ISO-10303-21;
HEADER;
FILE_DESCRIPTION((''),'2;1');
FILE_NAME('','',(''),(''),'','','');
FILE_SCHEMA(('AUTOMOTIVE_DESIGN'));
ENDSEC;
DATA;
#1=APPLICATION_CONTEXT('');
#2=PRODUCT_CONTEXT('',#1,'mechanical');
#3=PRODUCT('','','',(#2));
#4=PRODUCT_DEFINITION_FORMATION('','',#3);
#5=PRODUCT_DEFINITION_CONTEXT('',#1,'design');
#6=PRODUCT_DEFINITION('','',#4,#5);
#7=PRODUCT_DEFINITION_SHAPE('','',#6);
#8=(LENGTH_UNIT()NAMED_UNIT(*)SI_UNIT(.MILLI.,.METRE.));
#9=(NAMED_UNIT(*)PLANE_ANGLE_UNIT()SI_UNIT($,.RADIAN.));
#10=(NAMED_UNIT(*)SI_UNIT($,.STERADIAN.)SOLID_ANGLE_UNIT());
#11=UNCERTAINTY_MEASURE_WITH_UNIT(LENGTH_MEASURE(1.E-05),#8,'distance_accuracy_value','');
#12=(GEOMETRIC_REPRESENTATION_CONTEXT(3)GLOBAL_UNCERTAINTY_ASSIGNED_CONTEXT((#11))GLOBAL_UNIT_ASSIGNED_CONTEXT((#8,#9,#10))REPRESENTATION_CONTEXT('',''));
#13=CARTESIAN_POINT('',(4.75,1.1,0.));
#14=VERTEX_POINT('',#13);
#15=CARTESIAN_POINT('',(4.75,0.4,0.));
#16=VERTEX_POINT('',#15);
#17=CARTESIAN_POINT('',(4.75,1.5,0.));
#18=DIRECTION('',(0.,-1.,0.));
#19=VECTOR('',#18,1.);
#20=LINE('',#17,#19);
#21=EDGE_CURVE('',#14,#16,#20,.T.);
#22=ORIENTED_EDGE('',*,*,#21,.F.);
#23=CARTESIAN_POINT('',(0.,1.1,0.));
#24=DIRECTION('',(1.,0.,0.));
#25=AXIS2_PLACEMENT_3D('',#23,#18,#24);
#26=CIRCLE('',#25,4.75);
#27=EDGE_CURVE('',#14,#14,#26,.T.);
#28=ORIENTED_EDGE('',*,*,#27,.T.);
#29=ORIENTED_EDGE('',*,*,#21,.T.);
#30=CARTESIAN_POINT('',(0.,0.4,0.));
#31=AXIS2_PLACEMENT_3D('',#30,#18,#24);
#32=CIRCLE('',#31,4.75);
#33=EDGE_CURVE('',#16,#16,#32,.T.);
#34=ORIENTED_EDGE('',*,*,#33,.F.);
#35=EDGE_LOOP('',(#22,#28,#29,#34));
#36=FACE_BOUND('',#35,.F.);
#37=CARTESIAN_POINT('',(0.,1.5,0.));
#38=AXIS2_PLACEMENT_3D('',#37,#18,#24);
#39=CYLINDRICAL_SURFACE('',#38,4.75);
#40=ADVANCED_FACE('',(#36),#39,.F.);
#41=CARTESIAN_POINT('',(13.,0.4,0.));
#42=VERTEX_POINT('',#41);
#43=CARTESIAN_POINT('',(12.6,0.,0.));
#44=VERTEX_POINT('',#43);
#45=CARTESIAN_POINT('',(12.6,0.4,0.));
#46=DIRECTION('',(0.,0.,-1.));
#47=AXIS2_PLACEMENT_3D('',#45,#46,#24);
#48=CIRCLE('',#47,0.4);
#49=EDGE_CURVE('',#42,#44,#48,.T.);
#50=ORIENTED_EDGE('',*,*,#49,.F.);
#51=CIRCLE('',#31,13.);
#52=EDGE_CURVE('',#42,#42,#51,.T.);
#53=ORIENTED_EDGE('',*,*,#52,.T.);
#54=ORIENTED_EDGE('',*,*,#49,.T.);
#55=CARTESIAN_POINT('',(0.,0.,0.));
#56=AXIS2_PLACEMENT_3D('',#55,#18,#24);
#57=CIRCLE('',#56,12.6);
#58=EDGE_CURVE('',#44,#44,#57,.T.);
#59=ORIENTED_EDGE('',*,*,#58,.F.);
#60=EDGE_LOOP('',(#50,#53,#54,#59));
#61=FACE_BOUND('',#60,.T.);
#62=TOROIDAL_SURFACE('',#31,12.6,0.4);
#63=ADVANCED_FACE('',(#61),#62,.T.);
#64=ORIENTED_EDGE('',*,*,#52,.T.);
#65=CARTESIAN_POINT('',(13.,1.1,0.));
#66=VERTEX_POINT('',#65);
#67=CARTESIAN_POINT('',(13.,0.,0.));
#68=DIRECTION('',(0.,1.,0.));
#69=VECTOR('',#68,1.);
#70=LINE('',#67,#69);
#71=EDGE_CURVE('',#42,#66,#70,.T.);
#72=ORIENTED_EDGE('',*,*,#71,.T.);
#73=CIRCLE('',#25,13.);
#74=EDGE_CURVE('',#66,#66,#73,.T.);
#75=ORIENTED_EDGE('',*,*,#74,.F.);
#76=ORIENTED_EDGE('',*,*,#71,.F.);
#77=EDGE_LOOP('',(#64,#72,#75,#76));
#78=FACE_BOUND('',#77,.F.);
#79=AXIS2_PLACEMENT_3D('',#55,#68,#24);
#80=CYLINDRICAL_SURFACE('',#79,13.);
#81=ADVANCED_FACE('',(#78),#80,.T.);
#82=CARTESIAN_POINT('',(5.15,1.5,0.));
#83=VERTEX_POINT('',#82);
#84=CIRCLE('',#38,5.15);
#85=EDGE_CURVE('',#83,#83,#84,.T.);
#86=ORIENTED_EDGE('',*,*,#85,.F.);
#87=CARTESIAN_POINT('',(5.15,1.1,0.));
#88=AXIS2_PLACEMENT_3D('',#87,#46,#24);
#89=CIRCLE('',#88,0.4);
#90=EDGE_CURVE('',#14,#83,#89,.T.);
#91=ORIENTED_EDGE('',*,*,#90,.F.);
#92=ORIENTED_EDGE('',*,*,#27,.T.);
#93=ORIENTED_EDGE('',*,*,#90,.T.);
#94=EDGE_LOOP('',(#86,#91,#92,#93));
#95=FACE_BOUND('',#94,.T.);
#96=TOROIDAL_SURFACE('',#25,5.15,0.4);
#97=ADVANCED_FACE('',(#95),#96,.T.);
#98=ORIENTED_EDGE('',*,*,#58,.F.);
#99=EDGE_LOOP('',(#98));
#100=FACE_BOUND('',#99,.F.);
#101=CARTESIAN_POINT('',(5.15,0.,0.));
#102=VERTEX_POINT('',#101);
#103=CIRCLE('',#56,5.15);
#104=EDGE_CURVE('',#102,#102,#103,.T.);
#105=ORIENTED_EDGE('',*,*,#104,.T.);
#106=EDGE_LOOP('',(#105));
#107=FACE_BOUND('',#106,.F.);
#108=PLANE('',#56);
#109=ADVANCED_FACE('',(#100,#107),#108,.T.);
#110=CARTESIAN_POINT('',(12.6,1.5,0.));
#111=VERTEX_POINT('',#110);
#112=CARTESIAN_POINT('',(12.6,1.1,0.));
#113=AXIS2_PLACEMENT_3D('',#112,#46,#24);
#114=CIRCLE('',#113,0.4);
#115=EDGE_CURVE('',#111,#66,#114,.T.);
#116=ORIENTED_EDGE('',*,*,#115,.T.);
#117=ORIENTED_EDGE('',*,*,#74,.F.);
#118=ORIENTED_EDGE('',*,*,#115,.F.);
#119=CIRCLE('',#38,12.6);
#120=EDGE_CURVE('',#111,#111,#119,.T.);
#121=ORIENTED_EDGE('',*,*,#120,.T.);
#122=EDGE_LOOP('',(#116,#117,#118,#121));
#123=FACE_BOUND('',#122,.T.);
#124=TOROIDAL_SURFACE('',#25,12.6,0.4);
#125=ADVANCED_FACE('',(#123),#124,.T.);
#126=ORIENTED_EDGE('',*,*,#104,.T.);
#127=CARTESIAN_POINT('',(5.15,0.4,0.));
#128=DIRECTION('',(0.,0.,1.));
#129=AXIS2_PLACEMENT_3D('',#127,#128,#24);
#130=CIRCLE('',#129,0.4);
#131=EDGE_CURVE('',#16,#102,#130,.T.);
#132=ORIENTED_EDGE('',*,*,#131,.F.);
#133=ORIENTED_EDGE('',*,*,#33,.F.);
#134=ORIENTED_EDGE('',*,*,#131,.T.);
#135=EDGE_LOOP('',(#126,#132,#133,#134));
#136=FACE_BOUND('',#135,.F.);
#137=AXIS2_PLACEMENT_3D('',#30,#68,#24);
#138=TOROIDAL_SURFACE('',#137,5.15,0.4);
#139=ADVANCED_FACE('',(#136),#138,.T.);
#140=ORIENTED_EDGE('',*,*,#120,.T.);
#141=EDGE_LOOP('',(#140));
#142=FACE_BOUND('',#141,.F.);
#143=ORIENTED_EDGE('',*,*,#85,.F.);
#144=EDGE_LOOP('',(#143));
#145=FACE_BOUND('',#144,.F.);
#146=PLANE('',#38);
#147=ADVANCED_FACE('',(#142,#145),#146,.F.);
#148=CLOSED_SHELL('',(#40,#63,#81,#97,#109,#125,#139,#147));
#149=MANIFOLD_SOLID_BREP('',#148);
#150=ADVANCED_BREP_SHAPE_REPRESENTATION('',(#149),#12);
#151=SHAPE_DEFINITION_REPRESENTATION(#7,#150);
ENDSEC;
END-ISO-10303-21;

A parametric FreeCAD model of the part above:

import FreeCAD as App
import Part
import Sketcher
from FreeCAD import Vector


def edges_at(feature, points):
    """Names of the edges that pass closest to the given points."""
    edges = feature.Shape.Edges
    near = lambda p: min(range(len(edges)), key=lambda i: edges[i].distToShape(Part.Vertex(*p))[0])
    return sorted({f"Edge{near(p) + 1}" for p in points})


def add_polygon(sketch, points):
    """Adds a closed chain of lines whose ends are joined by coincident constraints."""
    first, n = sketch.GeometryCount, len(points)
    for a, b in zip(points, points[1:] + points[:1]):
        sketch.addGeometry(Part.LineSegment(App.Vector(*a, 0), App.Vector(*b, 0)), False)
    for i in range(n):
        sketch.addConstraint(Sketcher.Constraint("Coincident", first + i, 2, first + (i + 1) % n, 1))

doc = App.newDocument("Part")
body = doc.addObject("PartDesign::Body", "Body")

# Sketch on XY plane
sketch1 = body.newObject("Sketcher::SketchObject", "Sketch")
sketch1.AttachmentSupport = (doc.getObject("XY_Plane"), [""])
sketch1.MapMode = "FlatFace"
add_polygon(sketch1, [(4.8, 1.5), (4.8, 0), (13, 0), (13, 1.5)])  # lines 0-3
sketch1.addConstraint([
    Sketcher.Constraint("Vertical", 0),
    Sketcher.Constraint("Horizontal", 1),
    Sketcher.Constraint("Vertical", 2),
    Sketcher.Constraint("Horizontal", 3),
    Sketcher.Constraint("PointOnObject", 0, 2, -1),
    Sketcher.Constraint("DistanceY", 0, 2, 0, 1, 1.5),
    Sketcher.Constraint("DistanceX", -1, 1, 1, 2, 13.0),
    Sketcher.Constraint("DistanceX", 1, 1, 1, 2, 8.25),
])
revolution = body.newObject("PartDesign::Revolution", "Revolution")
revolution.Profile = sketch1
revolution.ReferenceAxis = (sketch1, ["V_Axis"])
revolution.Angle = 360
doc.recompute()

fillet = body.newObject("PartDesign::Fillet", "Fillet")
fillet.Base = (revolution, edges_at(revolution, [
    (-13, 0, 0),
    (-13, 1.5, 0),
    (-4.75, 0, 0),
    (-4.75, 1.5, 0),
]))
fillet.Radius = 0.4

doc.recompute()
